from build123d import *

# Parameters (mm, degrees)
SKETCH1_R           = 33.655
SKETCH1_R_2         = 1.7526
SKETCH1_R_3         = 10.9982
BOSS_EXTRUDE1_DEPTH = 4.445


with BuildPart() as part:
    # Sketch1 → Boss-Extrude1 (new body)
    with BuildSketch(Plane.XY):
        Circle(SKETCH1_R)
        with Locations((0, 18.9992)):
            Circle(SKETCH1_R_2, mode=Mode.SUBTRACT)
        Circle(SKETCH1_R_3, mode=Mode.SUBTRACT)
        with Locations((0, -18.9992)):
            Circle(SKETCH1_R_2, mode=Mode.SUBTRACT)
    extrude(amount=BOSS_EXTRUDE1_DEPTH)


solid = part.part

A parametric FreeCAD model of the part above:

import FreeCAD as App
import Part
import Sketcher
Q = App.Units.Quantity

doc = App.newDocument("Part")
body = doc.addObject("PartDesign::Body", "Body")

# Sketch on XY plane
sketch1 = body.newObject("Sketcher::SketchObject", "Sketch")
sketch1.AttachmentSupport = (doc.getObject("XY_Plane"), [""])
sketch1.MapMode = "FlatFace"
sketch1.addGeometry([
    Part.Circle(App.Vector(0, 0, 0), App.Vector(0, 0, 1), 33.7),
    Part.Circle(App.Vector(0, -19, 0), App.Vector(0, 0, 1), 1.8),
    Part.Circle(App.Vector(0, 0, 0), App.Vector(0, 0, 1), 11),
    Part.Circle(App.Vector(0, 19, 0), App.Vector(0, 0, 1), 1.8),
], False)
sketch1.addConstraint([
    Sketcher.Constraint("Coincident", 0, 3, -1, 1),
    Sketcher.Constraint("Coincident", 2, 3, -1, 1),
    Sketcher.Constraint("Equal", 1, 3),
    Sketcher.Constraint("Symmetric", 1, 3, 3, 3, -1, 1),
    Sketcher.Constraint("PointOnObject", 1, 3, -2),
    Sketcher.Constraint("Diameter", 0, Q("2.65 in")),
    Sketcher.Constraint("Diameter", 1, Q("0.138 in")),
    Sketcher.Constraint("Diameter", 2, Q("0.866 in")),
    Sketcher.Constraint("DistanceY", 1, 3, -1, 1, Q("0.748 in")),
])
pad1 = body.newObject("PartDesign::Pad", "Pad")
pad1.Profile = sketch1
pad1.Length = Q("0.175 in")

doc.recompute()
